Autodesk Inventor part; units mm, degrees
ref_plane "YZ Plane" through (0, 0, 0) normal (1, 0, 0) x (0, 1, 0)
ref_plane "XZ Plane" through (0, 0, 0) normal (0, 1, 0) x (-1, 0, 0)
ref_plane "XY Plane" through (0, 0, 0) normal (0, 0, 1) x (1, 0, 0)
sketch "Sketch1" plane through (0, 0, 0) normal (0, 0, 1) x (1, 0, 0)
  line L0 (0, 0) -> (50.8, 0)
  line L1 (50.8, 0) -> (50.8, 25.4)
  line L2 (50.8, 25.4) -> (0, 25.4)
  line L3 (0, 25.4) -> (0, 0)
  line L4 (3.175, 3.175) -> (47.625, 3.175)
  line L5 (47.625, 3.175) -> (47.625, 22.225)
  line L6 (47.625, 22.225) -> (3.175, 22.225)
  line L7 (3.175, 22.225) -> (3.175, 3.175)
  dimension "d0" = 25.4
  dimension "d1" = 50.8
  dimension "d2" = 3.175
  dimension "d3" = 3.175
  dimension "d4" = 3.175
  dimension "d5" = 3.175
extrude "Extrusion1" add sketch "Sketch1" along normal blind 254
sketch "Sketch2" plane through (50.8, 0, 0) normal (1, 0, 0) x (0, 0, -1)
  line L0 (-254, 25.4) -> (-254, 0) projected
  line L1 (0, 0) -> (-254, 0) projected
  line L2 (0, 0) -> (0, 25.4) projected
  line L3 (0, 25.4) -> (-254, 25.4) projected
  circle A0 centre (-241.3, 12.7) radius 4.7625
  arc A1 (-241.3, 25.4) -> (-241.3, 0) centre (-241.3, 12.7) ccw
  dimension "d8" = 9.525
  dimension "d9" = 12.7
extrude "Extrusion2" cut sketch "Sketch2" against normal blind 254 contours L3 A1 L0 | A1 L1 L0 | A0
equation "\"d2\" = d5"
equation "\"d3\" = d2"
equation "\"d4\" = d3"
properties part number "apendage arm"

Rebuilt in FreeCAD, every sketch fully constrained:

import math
import FreeCAD as App
import Part
import Sketcher

V = App.Vector
Q = App.Units.Quantity


def add_polygon(sketch, points):
    """Adds a closed chain of lines whose ends are joined by coincident constraints."""
    first, n = sketch.GeometryCount, len(points)
    for a, b in zip(points, points[1:] + points[:1]):
        sketch.addGeometry(Part.LineSegment(App.Vector(*a, 0), App.Vector(*b, 0)), False)
    for i in range(n):
        sketch.addConstraint(Sketcher.Constraint("Coincident", first + i, 2, first + (i + 1) % n, 1))

doc = App.newDocument("Part")
body = doc.addObject("PartDesign::Body", "Body")

# Sketch on XY plane
sketch1 = body.newObject("Sketcher::SketchObject", "Sketch")
sketch1.AttachmentSupport = (doc.getObject("XY_Plane"), [""])
sketch1.MapMode = "FlatFace"
add_polygon(sketch1, [(0, 25.4), (0, 0), (50.8, 0), (50.8, 25.4)])  # lines 0-3
add_polygon(sketch1, [(47.625, 3.175), (3.175, 3.175), (3.175, 22.225), (47.625, 22.225)])  # lines 4-7
sketch1.addConstraint(Sketcher.Constraint("Vertical", 0))
sketch1.addConstraint(Sketcher.Constraint("Horizontal", 1))
sketch1.addConstraint(Sketcher.Constraint("Vertical", 2))
sketch1.addConstraint(Sketcher.Constraint("Horizontal", 3))
sketch1.addConstraint(Sketcher.Constraint("Horizontal", 4))
sketch1.addConstraint(Sketcher.Constraint("Vertical", 5))
sketch1.addConstraint(Sketcher.Constraint("Horizontal", 6))
sketch1.addConstraint(Sketcher.Constraint("Vertical", 7))
sketch1.addConstraint(Sketcher.Constraint("Coincident", 0, 2, -1, 1))
sketch1.addConstraint(Sketcher.Constraint("DistanceX", 1, 1, 1, 2, Q("2 in")))
sketch1.addConstraint(Sketcher.Constraint("DistanceY", 0, 2, 0, 1, Q("1 in")))
sketch1.addConstraint(Sketcher.Constraint("DistanceX", -1, 1, 4, 2, Q("0.125 in")))
sketch1.addConstraint(Sketcher.Constraint("DistanceY", -1, 1, 4, 2, Q("0.125 in")))
sketch1.addConstraint(Sketcher.Constraint("DistanceY", 5, 2, 3, 2, Q("0.125 in")))
sketch1.addConstraint(Sketcher.Constraint("DistanceX", 6, 2, 2, 2, Q("0.125 in")))
pad1 = body.newObject("PartDesign::Pad", "Pad")
pad1.Profile = sketch1
pad1.Length = Q("10 in")

# Sketch on YZ plane
sketch2 = body.newObject("Sketcher::SketchObject", "Sketch001")
sketch2.AttachmentSupport = (doc.getObject("YZ_Plane"), [""])
sketch2.MapMode = "FlatFace"
sketch2.AttachmentOffset = App.Placement(V(0, 0, 2 * 25.4), App.Rotation())
sketch2.addGeometry(Part.LineSegment(V(25.4, 241.3, 0), V(25.4, 254, 0)), False)
sketch2.addGeometry(Part.LineSegment(V(25.4, 254, 0), V(12.7, 254, 0)), False)
sketch2.addGeometry(Part.ArcOfCircle(Part.Circle(V(12.7, 241.3, 0), V(0, 0, 1), 12.7), math.radians(0), math.radians(90)), False)
sketch2.addGeometry(Part.ArcOfCircle(Part.Circle(V(12.7, 241.3, 0), V(0, 0, 1), 12.7), math.radians(90), math.radians(180)), False)
sketch2.addGeometry(Part.LineSegment(V(12.7, 254, 0), V(0, 254, 0)), False)
sketch2.addGeometry(Part.LineSegment(V(0, 254, 0), V(0, 241.3, 0)), False)
sketch2.addGeometry(Part.Circle(V(12.7, 241.3, 0), V(0, 0, 1), 4.7625), False)
sketch2.addConstraint(Sketcher.Constraint("Coincident", 0, 2, 1, 1))
sketch2.addConstraint(Sketcher.Constraint("Tangent", 1, 2, 2, 2))
sketch2.addConstraint(Sketcher.Constraint("Tangent", 2, 1, 0, 1))
sketch2.addConstraint(Sketcher.Constraint("Tangent", 3, 1, 4, 1))
sketch2.addConstraint(Sketcher.Constraint("Coincident", 4, 2, 5, 1))
sketch2.addConstraint(Sketcher.Constraint("Tangent", 5, 2, 3, 2))
sketch2.addConstraint(Sketcher.Constraint("Vertical", 0))
sketch2.addConstraint(Sketcher.Constraint("Horizontal", 1))
sketch2.addConstraint(Sketcher.Constraint("Horizontal", 4))
sketch2.addConstraint(Sketcher.Constraint("Vertical", 5))
sketch2.addConstraint(Sketcher.Constraint("Coincident", 3, 3, 2, 3))
sketch2.addConstraint(Sketcher.Constraint("Coincident", 6, 3, 2, 3))
sketch2.addConstraint(Sketcher.Constraint("Equal", 2, 3))
sketch2.addConstraint(Sketcher.Constraint("PointOnObject", 4, 2, -2))
sketch2.addConstraint(Sketcher.Constraint("Radius", 2, Q("0.5 in")))
sketch2.addConstraint(Sketcher.Constraint("Diameter", 6, Q("0.375 in")))
sketch2.addConstraint(Sketcher.Constraint("DistanceY", -1, 1, 0, 2, Q("10 in")))
pocket1 = body.newObject("PartDesign::Pocket", "Pocket")
pocket1.Profile = sketch2
pocket1.Length = Q("10 in")

doc.recompute()
